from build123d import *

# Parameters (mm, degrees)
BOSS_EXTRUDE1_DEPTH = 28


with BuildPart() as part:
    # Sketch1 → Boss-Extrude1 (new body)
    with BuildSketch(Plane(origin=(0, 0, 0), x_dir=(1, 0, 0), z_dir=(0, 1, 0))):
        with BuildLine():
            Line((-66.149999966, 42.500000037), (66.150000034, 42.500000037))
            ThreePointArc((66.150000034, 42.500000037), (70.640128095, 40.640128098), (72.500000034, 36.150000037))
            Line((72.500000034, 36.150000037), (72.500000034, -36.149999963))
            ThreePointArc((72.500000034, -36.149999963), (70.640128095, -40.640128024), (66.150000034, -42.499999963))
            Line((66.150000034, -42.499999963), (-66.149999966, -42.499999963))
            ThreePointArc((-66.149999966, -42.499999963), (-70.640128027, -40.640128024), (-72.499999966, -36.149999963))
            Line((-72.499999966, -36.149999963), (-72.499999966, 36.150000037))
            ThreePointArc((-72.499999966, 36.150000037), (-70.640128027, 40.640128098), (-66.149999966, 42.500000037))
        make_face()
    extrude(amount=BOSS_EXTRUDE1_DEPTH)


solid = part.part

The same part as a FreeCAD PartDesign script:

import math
import FreeCAD as App
import Part
import Sketcher

doc = App.newDocument("Part")
body = doc.addObject("PartDesign::Body", "Body")

# Sketch on XZ plane
sketch1 = body.newObject("Sketcher::SketchObject", "Sketch")
sketch1.AttachmentSupport = (doc.getObject("XZ_Plane"), [""])
sketch1.MapMode = "FlatFace"
sketch1.addGeometry([
    Part.LineSegment(App.Vector(66, -43, 0), App.Vector(-66, -43, 0)),  # 0
    Part.ArcOfCircle(Part.Circle(App.Vector(-66, -36, 0), App.Vector(0, 0, 1), 6), math.radians(180), math.radians(270)),  # 1
    Part.LineSegment(App.Vector(-72, -36, 0), App.Vector(-72, 36, 0)),  # 2
    Part.ArcOfCircle(Part.Circle(App.Vector(-66, 36, 0), App.Vector(0, 0, 1), 6), math.radians(90), math.radians(180)),  # 3
    Part.LineSegment(App.Vector(-66, 42, 0), App.Vector(66, 42, 0)),  # 4
    Part.ArcOfCircle(Part.Circle(App.Vector(66, 36, 0), App.Vector(0, 0, 1), 6), math.radians(0), math.radians(90)),  # 5
    Part.LineSegment(App.Vector(73, 36, 0), App.Vector(73, -36, 0)),  # 6
    Part.ArcOfCircle(Part.Circle(App.Vector(66, -36, 0), App.Vector(0, 0, 1), 6), math.radians(-90), math.radians(0)),  # 7
], False)
sketch1.addConstraint([
    Sketcher.Constraint("Tangent", 0, 2, 1, 2),
    Sketcher.Constraint("Tangent", 1, 1, 2, 1),
    Sketcher.Constraint("Tangent", 2, 2, 3, 2),
    Sketcher.Constraint("Tangent", 3, 1, 4, 1),
    Sketcher.Constraint("Tangent", 4, 2, 5, 2),
    Sketcher.Constraint("Tangent", 5, 1, 6, 1),
    Sketcher.Constraint("Tangent", 6, 2, 7, 2),
    Sketcher.Constraint("Tangent", 7, 1, 0, 1),
    Sketcher.Constraint("Horizontal", 0),
    Sketcher.Constraint("Vertical", 2),
    Sketcher.Constraint("Horizontal", 4),
    Sketcher.Constraint("Vertical", 6),
    Sketcher.Constraint("Equal", 1, 3),
    Sketcher.Constraint("Equal", 3, 5),
    Sketcher.Constraint("Equal", 5, 7),
    Sketcher.Constraint("Symmetric", 1, 3, 5, 3, -1, 1),
    Sketcher.Constraint("Radius", 1, 6.35),
    Sketcher.Constraint("DistanceX", 0, 2, 0, 1, 132.3),
    Sketcher.Constraint("DistanceY", 2, 1, 2, 2, 72.3),
])
pad1 = body.newObject("PartDesign::Pad", "Pad")
pad1.Profile = sketch1
pad1.Length = 28
pad1.Reversed = True

doc.recompute()
